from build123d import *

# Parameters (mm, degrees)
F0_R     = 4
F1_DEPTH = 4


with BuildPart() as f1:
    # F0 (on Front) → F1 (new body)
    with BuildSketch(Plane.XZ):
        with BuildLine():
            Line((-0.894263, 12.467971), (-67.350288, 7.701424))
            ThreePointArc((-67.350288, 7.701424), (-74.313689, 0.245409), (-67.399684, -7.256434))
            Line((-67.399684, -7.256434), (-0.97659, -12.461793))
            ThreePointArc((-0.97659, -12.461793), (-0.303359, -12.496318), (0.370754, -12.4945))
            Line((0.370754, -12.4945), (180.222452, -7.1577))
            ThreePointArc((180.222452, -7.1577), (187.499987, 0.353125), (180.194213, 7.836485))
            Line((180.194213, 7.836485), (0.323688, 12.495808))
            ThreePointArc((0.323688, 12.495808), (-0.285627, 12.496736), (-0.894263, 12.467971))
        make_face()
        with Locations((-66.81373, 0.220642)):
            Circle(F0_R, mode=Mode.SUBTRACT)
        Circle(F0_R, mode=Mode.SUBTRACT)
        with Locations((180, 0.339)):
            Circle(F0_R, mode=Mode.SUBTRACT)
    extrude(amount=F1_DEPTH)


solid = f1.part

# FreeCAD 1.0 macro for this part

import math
import FreeCAD as App
import Part
import Sketcher

V = App.Vector

doc = App.newDocument("Part")
body = doc.addObject("PartDesign::Body", "Body")

sketch1 = body.newObject("Sketcher::SketchObject", "Sketch")
sketch1.AttachmentSupport = (doc.getObject("XZ_Plane"), [""])
sketch1.MapMode = "FlatFace"
sketch1.addGeometry(Part.LineSegment(V(-0.894263, 12.467971, 0), V(-67.350288, 7.701424, 0)), False)
sketch1.addGeometry(Part.ArcOfCircle(Part.Circle(V(-66.81373, 0.220642, 0), V(0, 0, 1), 7.5), math.radians(94.102507), math.radians(265.519074)), False)
sketch1.addGeometry(Part.LineSegment(V(-67.399684, -7.256434, 0), V(-0.97659, -12.461793, 0)), False)
sketch1.addGeometry(Part.ArcOfCircle(Part.Circle(V(-0.000002, 0.00029, 0), V(0, 0, 1), 12.50029), math.radians(-94.480813), math.radians(-88.30037)), False)
sketch1.addGeometry(Part.LineSegment(V(0.370754, -12.4945, 0), V(180.222452, -7.1577, 0)), False)
sketch1.addGeometry(Part.ArcOfCircle(Part.Circle(V(180, 0.339, 0), V(0, 0, 1), 7.5), math.radians(-88.300346), math.radians(88.51616)), False)
sketch1.addGeometry(Part.LineSegment(V(180.194213, 7.836485, 0), V(0.323688, 12.495808, 0)), False)
sketch1.addGeometry(Part.ArcOfCircle(Part.Circle(V(-0.000002, -0.000199, 0), V(0, 0, 1), 12.500198), math.radians(88.516172), math.radians(94.10243)), False)
sketch1.addGeometry(Part.Circle(V(0, 0, 0), V(0, 0, 1), 4), False)
sketch1.addGeometry(Part.Circle(V(-66.81373, 0.220642, 0), V(0, 0, 1), 4), False)
sketch1.addGeometry(Part.Circle(V(180, 0.339, 0), V(0, 0, 1), 4), False)
sketch1.addConstraint(Sketcher.Constraint("Coincident", 0, 2, 1, 1))
sketch1.addConstraint(Sketcher.Constraint("Coincident", 1, 2, 2, 1))
sketch1.addConstraint(Sketcher.Constraint("Coincident", 2, 2, 3, 1))
sketch1.addConstraint(Sketcher.Constraint("Coincident", 3, 2, 4, 1))
sketch1.addConstraint(Sketcher.Constraint("Coincident", 4, 2, 5, 1))
sketch1.addConstraint(Sketcher.Constraint("Coincident", 5, 2, 6, 1))
sketch1.addConstraint(Sketcher.Constraint("Coincident", 6, 2, 7, 1))
sketch1.addConstraint(Sketcher.Constraint("Coincident", 7, 2, 0, 1))
sketch1.addConstraint(Sketcher.Constraint("Coincident", 8, 3, -1, 1))
sketch1.addConstraint(Sketcher.Constraint("Coincident", 9, 3, 1, 3))
sketch1.addConstraint(Sketcher.Constraint("Coincident", 10, 3, 5, 3))
sketch1.addConstraint(Sketcher.Constraint("PointOnObject", 3, 3, -2))
sketch1.addConstraint(Sketcher.Constraint("PointOnObject", 7, 3, -2))
sketch1.addConstraint(Sketcher.Constraint("Diameter", 8, 8.0))
sketch1.addConstraint(Sketcher.Constraint("Diameter", 9, 8.0))
sketch1.addConstraint(Sketcher.Constraint("Diameter", 10, 8.0))
sketch1.addConstraint(Sketcher.Constraint("Radius", 1, 7.5))
sketch1.addConstraint(Sketcher.Constraint("Radius", 5, 7.5))
sketch1.addConstraint(Sketcher.Constraint("DistanceX", -1, 1, 5, 3, 180.0))
sketch1.addConstraint(Sketcher.Constraint("Radius", 7, 12.500198))
sketch1.addConstraint(Sketcher.Constraint("Radius", 3, 12.50029))
sketch1.addConstraint(Sketcher.Constraint("DistanceY", -1, 1, 5, 3, 0.339))
sketch1.addConstraint(Sketcher.Constraint("DistanceY", 7, 3, -1, 1, 0.000199))
sketch1.addConstraint(Sketcher.Constraint("DistanceY", 3, 2, -1, 1, 12.4945))
sketch1.addConstraint(Sketcher.Constraint("DistanceY", 4, 2, -1, 1, 7.1577))
sketch1.addConstraint(Sketcher.Constraint("DistanceY", 2, 2, 6, 2, 24.957601))
sketch1.addConstraint(Sketcher.Constraint("Distance", 4, 179.930861))
sketch1.addConstraint(Sketcher.Constraint("Distance", 6, 179.930862))
sketch1.addConstraint(Sketcher.Constraint("DistanceX", 1, 3, -1, 1, 66.81373))
sketch1.addConstraint(Sketcher.Constraint("DistanceY", -1, 1, 1, 3, 0.220642))
sketch1.addConstraint(Sketcher.Constraint("DistanceX", 0, 2, -1, 1, 67.350288))
sketch1.addConstraint(Sketcher.Constraint("DistanceX", 2, 2, -1, 1, 0.97659))
sketch1.addConstraint(Sketcher.Constraint("DistanceY", -1, 1, 7, 2, 12.467971))
sketch1.addConstraint(Sketcher.Constraint("DistanceY", 1, 2, 0, 2, 14.957858))
pad1 = body.newObject("PartDesign::Pad", "Pad")
pad1.Profile = sketch1
pad1.Length = 4

doc.recompute()
